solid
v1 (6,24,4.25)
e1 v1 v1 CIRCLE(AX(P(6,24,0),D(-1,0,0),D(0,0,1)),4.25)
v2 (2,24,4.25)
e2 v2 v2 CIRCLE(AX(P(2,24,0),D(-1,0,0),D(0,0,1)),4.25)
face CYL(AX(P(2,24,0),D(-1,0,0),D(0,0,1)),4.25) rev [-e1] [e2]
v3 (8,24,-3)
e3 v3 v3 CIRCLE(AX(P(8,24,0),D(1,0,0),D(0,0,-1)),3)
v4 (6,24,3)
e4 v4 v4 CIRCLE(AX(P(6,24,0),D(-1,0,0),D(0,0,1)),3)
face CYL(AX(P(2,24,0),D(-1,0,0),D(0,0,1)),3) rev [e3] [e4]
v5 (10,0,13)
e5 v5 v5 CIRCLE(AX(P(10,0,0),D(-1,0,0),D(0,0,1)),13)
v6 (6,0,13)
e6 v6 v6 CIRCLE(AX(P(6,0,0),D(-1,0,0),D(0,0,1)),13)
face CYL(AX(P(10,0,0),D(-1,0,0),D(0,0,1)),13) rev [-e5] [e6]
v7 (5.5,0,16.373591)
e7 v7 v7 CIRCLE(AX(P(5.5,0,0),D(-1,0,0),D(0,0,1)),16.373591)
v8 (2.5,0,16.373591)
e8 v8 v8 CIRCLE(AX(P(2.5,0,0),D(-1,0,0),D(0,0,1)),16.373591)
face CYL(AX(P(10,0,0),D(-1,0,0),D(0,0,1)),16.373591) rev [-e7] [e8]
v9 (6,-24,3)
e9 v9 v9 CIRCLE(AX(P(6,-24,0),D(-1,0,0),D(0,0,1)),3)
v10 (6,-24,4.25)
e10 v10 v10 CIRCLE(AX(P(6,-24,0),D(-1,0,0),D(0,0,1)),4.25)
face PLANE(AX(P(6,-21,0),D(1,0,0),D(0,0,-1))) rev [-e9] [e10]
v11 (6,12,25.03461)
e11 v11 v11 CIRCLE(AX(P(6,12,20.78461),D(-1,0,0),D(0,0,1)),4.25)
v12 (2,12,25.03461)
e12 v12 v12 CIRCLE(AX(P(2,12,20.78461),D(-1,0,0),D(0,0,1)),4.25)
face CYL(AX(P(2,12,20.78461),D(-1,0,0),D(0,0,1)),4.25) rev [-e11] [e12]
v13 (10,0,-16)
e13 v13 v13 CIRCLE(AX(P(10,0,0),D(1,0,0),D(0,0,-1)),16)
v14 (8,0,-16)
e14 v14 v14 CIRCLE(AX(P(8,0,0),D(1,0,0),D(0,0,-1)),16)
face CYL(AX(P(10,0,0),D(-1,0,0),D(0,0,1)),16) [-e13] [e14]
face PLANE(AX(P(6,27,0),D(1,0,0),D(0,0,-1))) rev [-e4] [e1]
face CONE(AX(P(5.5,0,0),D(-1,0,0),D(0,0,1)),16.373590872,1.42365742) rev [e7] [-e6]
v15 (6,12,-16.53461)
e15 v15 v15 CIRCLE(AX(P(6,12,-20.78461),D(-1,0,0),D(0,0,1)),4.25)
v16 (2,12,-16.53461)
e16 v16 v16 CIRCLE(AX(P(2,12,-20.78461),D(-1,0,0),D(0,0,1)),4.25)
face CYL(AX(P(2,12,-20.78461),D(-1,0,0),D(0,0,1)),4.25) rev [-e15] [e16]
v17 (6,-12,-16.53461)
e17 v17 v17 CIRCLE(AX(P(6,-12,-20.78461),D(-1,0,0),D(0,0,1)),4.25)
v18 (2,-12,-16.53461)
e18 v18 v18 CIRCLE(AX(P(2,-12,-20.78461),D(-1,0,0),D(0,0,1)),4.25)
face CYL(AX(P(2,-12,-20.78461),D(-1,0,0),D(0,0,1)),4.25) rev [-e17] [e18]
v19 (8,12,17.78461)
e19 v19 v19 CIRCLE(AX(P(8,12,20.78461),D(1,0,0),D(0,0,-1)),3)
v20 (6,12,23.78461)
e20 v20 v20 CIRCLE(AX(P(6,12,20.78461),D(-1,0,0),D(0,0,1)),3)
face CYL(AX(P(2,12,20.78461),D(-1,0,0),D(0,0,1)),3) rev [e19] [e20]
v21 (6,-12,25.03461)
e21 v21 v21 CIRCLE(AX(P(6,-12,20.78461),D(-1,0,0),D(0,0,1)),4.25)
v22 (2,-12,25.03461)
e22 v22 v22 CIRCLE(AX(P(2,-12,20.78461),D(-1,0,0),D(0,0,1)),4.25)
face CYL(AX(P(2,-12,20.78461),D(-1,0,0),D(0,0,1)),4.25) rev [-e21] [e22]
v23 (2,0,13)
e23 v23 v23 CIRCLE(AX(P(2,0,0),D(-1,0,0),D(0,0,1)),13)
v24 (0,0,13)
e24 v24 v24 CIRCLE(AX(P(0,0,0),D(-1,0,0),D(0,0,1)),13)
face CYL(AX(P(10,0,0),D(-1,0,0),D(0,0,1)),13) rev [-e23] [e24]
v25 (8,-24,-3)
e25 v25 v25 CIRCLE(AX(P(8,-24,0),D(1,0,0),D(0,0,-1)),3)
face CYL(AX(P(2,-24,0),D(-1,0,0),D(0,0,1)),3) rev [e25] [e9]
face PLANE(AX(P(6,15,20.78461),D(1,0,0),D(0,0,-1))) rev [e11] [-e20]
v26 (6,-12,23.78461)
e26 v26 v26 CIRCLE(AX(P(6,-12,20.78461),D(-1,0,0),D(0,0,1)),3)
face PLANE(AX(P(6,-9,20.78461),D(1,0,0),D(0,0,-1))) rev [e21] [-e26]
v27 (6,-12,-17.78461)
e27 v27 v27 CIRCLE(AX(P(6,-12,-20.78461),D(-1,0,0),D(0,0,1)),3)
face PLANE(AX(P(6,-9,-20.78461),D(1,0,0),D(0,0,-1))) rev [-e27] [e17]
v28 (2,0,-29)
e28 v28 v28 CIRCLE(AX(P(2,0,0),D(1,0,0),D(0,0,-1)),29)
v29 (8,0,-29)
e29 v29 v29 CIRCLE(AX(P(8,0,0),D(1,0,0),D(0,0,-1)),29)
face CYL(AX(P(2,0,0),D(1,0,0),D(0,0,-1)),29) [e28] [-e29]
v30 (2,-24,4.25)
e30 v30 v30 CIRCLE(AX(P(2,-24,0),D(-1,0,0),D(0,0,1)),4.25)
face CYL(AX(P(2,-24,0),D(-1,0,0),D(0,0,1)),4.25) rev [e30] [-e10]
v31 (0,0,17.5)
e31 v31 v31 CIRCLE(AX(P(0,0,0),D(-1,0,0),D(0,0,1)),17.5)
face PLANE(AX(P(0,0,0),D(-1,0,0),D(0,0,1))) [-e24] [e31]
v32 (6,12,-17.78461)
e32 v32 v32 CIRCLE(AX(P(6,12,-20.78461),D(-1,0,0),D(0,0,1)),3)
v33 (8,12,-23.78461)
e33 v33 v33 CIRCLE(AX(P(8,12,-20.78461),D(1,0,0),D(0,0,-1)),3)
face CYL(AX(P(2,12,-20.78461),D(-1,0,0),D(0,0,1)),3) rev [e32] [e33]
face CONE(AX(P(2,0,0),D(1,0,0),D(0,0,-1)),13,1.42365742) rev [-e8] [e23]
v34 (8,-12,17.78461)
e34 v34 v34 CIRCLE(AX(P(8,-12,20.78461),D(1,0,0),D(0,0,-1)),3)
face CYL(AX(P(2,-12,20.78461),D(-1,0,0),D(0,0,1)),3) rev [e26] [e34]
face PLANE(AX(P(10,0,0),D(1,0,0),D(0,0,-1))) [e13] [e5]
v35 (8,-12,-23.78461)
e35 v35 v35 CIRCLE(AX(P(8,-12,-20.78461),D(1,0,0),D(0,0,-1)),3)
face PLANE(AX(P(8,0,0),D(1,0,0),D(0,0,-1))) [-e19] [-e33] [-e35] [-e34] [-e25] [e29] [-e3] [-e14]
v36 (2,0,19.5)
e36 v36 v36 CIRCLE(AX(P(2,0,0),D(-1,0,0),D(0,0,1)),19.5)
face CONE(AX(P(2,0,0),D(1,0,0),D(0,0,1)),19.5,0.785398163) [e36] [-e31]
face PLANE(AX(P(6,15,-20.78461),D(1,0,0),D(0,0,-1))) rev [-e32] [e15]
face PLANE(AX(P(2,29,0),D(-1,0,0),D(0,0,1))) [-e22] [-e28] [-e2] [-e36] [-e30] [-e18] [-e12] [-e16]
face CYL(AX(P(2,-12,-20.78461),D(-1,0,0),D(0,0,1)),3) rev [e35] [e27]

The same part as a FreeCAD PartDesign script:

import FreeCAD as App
import Part
import Sketcher


def add_polygon(sketch, points):
    """Adds a closed chain of lines whose ends are joined by coincident constraints."""
    first, n = sketch.GeometryCount, len(points)
    for a, b in zip(points, points[1:] + points[:1]):
        sketch.addGeometry(Part.LineSegment(App.Vector(*a, 0), App.Vector(*b, 0)), False)
    for i in range(n):
        sketch.addConstraint(Sketcher.Constraint("Coincident", first + i, 2, first + (i + 1) % n, 1))

doc = App.newDocument("Part")
body = doc.addObject("PartDesign::Body", "Body")

# Sketch on XY plane
sketch1 = body.newObject("Sketcher::SketchObject", "Sketch")
sketch1.AttachmentSupport = (doc.getObject("XY_Plane"), [""])
sketch1.MapMode = "FlatFace"
add_polygon(sketch1, [(2, 29), (2, 0), (8, 0), (8, 29)])  # lines 0-3
sketch1.addConstraint([
    Sketcher.Constraint("Vertical", 0),
    Sketcher.Constraint("Horizontal", 1),
    Sketcher.Constraint("Vertical", 2),
    Sketcher.Constraint("Horizontal", 3),
    Sketcher.Constraint("PointOnObject", 0, 2, -1),
    Sketcher.Constraint("DistanceX", 1, 1, 1, 2, 6.0),
    Sketcher.Constraint("DistanceY", 0, 2, 0, 1, 29.0),
    Sketcher.Constraint("DistanceX", -1, 1, 0, 2, 2.0),
])
revolution = body.newObject("PartDesign::Revolution", "Revolution")
revolution.Profile = sketch1
revolution.ReferenceAxis = (sketch1, ["H_Axis"])
revolution.Angle = 360

# Sketch on YZ plane
sketch2 = body.newObject("Sketcher::SketchObject", "Sketch001")
sketch2.AttachmentSupport = (doc.getObject("YZ_Plane"), [""])
sketch2.MapMode = "FlatFace"
sketch2.AttachmentOffset = App.Placement(App.Vector(0, 0, 2), App.Rotation())
sketch2.addGeometry(Part.Circle(App.Vector(0, 0, 0), App.Vector(0, 0, 1), 20), False)
sketch2.addConstraint([
    Sketcher.Constraint("Coincident", 0, 3, -1, 1),
    Sketcher.Constraint("Diameter", 0, 39.0),
])
pad1 = body.newObject("PartDesign::Pad", "Pad")
pad1.Profile = sketch2
pad1.Length = 2
pad1.Reversed = True
pad1.TaperAngle = -45

# Sketch on YZ plane
sketch3 = body.newObject("Sketcher::SketchObject", "Sketch002")
sketch3.AttachmentSupport = (doc.getObject("YZ_Plane"), [""])
sketch3.MapMode = "FlatFace"
sketch3.AttachmentOffset = App.Placement(App.Vector(0, 0, 8), App.Rotation())
sketch3.addGeometry(Part.Circle(App.Vector(0, 0, 0), App.Vector(0, 0, 1), 16), False)
sketch3.addConstraint([
    Sketcher.Constraint("Coincident", 0, 3, -1, 1),
    Sketcher.Constraint("Diameter", 0, 32.0),
])
pad2 = body.newObject("PartDesign::Pad", "Pad001")
pad2.Profile = sketch3
pad2.Length = 2

# Sketch on XY plane
sketch4 = body.newObject("Sketcher::SketchObject", "Sketch003")
sketch4.AttachmentSupport = (doc.getObject("XY_Plane"), [""])
sketch4.MapMode = "FlatFace"
add_polygon(sketch4, [(10, 13), (10, 0), (0, 0), (0, 13), (2, 13), (2.5, 16.4), (5.5, 16.4), (6, 13)])  # lines 0-7
sketch4.addConstraint([
    Sketcher.Constraint("Vertical", 0),
    Sketcher.Constraint("Horizontal", 1),
    Sketcher.Constraint("Vertical", 2),
    Sketcher.Constraint("Horizontal", 3),
    Sketcher.Constraint("Horizontal", 5),
    Sketcher.Constraint("Horizontal", 7),
    Sketcher.Constraint("Coincident", 1, 2, -1, 1),
    Sketcher.Constraint("Horizontal", 3, 2, 6, 2),
    Sketcher.Constraint("Equal", 4, 6),
    Sketcher.Constraint("DistanceX", 1, 2, 1, 1, 10.0),
    Sketcher.Constraint("DistanceX", 3, 1, 3, 2, 2.0),
    Sketcher.Constraint("DistanceX", 5, 1, 5, 2, 3.0),
    Sketcher.Constraint("DistanceX", 7, 1, 7, 2, 4.0),
    Sketcher.Constraint("DistanceY", 0, 2, 0, 1, 13.0),
    Sketcher.Constraint("DistanceY", -1, 1, 4, 2, 16.373591),
])
groove = body.newObject("PartDesign::Groove", "Groove")
groove.Profile = sketch4
groove.ReferenceAxis = (sketch4, ["H_Axis"])
groove.Angle = 360

# Sketch on YZ plane
sketch5 = body.newObject("Sketcher::SketchObject", "Sketch004")
sketch5.AttachmentSupport = (doc.getObject("YZ_Plane"), [""])
sketch5.MapMode = "FlatFace"
sketch5.AttachmentOffset = App.Placement(App.Vector(0, 0, 2), App.Rotation())
sketch5.addGeometry([
    Part.Circle(App.Vector(-12, 20.8, 0), App.Vector(0, 0, 1), 3),  # 0
    Part.Circle(App.Vector(-24, 0, 0), App.Vector(0, 0, 1), 3),  # 1
    Part.Circle(App.Vector(-12, -20.8, 0), App.Vector(0, 0, 1), 3),  # 2
    Part.Circle(App.Vector(12, -20.8, 0), App.Vector(0, 0, 1), 3),  # 3
    Part.Circle(App.Vector(24, 0, 0), App.Vector(0, 0, 1), 3),  # 4
    Part.Circle(App.Vector(12, 20.8, 0), App.Vector(0, 0, 1), 3),  # 5
], False)
sketch5.addConstraint([
    Sketcher.Constraint("Equal", 0, 1),
    Sketcher.Constraint("Equal", 1, 2),
    Sketcher.Constraint("Equal", 2, 3),
    Sketcher.Constraint("Equal", 3, 4),
    Sketcher.Constraint("Equal", 4, 5),
    Sketcher.Constraint("Symmetric", 0, 3, 3, 3, -1, 1),
    Sketcher.Constraint("Symmetric", 1, 3, 4, 3, -1, 1),
    Sketcher.Constraint("Symmetric", 2, 3, 5, 3, -1, 1),
    Sketcher.Constraint("Symmetric", 2, 3, 3, 3, -2),
    Sketcher.Constraint("PointOnObject", 1, 3, -1),
    Sketcher.Constraint("Diameter", 0, 6.0),
    Sketcher.Constraint("DistanceX", 0, 3, -1, 1, 12.0),
    Sketcher.Constraint("DistanceX", 1, 3, -1, 1, 24.0),
    Sketcher.Constraint("DistanceY", -1, 1, 0, 3, 20.78461),
])
doc.recompute()
hole = body.newObject("PartDesign::Hole", "Hole")
hole.Profile = sketch5
hole.ThreadType = "None"
hole.Diameter = 6
hole.DepthType = "Dimension"
hole.Depth = 8
hole.DrillPoint = "Flat"
hole.HoleCutType = "Counterbore"
hole.HoleCutDiameter = 8.5
hole.HoleCutDepth = 4
hole.Reversed = True

doc.recompute()
